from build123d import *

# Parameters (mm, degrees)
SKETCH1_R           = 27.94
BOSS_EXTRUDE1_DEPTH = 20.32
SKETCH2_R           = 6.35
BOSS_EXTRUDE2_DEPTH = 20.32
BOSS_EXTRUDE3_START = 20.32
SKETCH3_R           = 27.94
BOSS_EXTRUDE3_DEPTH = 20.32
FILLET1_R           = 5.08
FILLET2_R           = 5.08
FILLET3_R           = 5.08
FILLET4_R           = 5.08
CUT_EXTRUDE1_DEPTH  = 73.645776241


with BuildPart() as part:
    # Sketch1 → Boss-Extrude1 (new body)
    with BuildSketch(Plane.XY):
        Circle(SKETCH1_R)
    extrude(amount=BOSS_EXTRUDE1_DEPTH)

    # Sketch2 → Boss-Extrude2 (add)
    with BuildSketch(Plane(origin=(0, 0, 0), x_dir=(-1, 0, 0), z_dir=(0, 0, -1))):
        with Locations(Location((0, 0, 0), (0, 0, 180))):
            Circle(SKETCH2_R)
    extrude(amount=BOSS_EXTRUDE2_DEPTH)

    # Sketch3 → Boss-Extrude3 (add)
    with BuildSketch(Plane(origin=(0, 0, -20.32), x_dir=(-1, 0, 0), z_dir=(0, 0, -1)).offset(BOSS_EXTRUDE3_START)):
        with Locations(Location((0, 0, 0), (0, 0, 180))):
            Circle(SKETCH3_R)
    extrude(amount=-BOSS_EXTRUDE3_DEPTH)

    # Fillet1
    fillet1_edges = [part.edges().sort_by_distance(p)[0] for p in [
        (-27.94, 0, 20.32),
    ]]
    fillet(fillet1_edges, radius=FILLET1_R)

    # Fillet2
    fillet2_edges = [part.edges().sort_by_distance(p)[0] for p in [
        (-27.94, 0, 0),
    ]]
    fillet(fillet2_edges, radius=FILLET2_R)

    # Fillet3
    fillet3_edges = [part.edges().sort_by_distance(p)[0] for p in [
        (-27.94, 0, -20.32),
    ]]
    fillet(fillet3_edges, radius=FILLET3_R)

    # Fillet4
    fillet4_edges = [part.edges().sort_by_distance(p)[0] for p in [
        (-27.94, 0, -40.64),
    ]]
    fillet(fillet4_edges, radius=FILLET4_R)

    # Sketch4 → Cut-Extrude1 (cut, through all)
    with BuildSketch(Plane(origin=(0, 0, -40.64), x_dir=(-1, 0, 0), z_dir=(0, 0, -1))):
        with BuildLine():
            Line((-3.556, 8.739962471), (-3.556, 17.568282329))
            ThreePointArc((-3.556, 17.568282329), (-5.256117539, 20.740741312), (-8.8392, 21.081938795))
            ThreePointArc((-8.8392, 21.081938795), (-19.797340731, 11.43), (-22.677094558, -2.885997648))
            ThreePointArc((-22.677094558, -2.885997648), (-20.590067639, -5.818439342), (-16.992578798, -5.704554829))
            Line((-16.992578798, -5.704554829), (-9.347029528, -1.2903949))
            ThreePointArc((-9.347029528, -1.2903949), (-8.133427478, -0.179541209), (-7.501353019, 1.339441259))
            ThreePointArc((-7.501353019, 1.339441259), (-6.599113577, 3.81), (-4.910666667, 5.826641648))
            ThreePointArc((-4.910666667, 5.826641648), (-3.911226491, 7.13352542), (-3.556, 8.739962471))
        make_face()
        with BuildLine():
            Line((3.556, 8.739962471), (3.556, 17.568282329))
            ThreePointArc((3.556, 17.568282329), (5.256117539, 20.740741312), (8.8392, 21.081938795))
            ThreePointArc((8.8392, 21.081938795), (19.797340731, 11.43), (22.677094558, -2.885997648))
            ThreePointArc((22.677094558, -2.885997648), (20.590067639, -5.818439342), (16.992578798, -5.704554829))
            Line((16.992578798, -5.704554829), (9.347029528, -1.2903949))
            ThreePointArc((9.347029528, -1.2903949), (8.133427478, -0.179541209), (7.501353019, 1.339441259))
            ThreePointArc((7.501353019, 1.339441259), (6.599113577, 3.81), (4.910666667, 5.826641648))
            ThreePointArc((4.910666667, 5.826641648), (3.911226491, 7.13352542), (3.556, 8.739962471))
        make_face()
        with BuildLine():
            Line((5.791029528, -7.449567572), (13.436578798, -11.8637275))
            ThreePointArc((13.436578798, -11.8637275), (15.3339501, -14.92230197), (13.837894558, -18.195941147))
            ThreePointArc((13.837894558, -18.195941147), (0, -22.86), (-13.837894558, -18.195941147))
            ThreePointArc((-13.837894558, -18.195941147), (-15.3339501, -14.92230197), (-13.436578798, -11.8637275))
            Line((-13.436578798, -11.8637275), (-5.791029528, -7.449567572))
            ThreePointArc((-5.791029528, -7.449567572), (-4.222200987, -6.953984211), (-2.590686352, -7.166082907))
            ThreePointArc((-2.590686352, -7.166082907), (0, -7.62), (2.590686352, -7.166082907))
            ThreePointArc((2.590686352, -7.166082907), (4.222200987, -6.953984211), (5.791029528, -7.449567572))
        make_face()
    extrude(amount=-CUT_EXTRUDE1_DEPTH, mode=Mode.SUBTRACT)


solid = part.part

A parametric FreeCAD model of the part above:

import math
import FreeCAD as App
import Part
import Sketcher

V = App.Vector
Q = App.Units.Quantity


def edges_at(feature, points):
    """Names of the edges that pass closest to the given points."""
    edges = feature.Shape.Edges
    near = lambda p: min(range(len(edges)), key=lambda i: edges[i].distToShape(Part.Vertex(*p))[0])
    return sorted({f"Edge{near(p) + 1}" for p in points})

doc = App.newDocument("Part")
body = doc.addObject("PartDesign::Body", "Body")

# Sketch on XY plane
sketch1 = body.newObject("Sketcher::SketchObject", "Sketch")
sketch1.AttachmentSupport = (doc.getObject("XY_Plane"), [""])
sketch1.MapMode = "FlatFace"
sketch1.addGeometry(Part.Circle(V(0, 0, 0), V(0, 0, 1), 27.94), False)
sketch1.addConstraint([
    Sketcher.Constraint("Coincident", 0, 3, -1, 1),
    Sketcher.Constraint("Diameter", 0, Q("2.2 in")),
])
pad1 = body.newObject("PartDesign::Pad", "Pad")
pad1.Profile = sketch1
pad1.Length = Q("0.8 in")

# Sketch on XY plane
sketch2 = body.newObject("Sketcher::SketchObject", "Sketch001")
sketch2.AttachmentSupport = (doc.getObject("XY_Plane"), [""])
sketch2.MapMode = "FlatFace"
sketch2.addGeometry(Part.Circle(V(0, 0, 0), V(0, 0, 1), 6.35), False)
sketch2.addConstraint([
    Sketcher.Constraint("Coincident", 0, 3, -1, 1),
    Sketcher.Constraint("Diameter", 0, Q("0.5 in")),
])
pad2 = body.newObject("PartDesign::Pad", "Pad001")
pad2.Profile = sketch2
pad2.Length = Q("0.8 in")
pad2.Reversed = True

# Sketch on XY plane
sketch3 = body.newObject("Sketcher::SketchObject", "Sketch002")
sketch3.AttachmentSupport = (doc.getObject("XY_Plane"), [""])
sketch3.MapMode = "FlatFace"
sketch3.AttachmentOffset = App.Placement(V(0, 0, -1.6 * 25.4), App.Rotation())
sketch3.addGeometry(Part.Circle(V(0, 0, 0), V(0, 0, 1), 27.94), False)
sketch3.addConstraint([
    Sketcher.Constraint("Coincident", 0, 3, -1, 1),
    Sketcher.Constraint("Diameter", 0, Q("2.2 in")),
])
pad3 = body.newObject("PartDesign::Pad", "Pad002")
pad3.Profile = sketch3
pad3.Length = Q("0.8 in")
doc.recompute()

fillet = body.newObject("PartDesign::Fillet", "Fillet")
fillet.Base = (pad3, edges_at(pad3, [(-27.94, 0, 20.32)]))
fillet.Radius = Q("0.2 in")
doc.recompute()

fillet2 = body.newObject("PartDesign::Fillet", "Fillet001")
fillet2.Base = (fillet, edges_at(fillet, [(-27.94, 0, 0)]))
fillet2.Radius = Q("0.2 in")
doc.recompute()

fillet3 = body.newObject("PartDesign::Fillet", "Fillet002")
fillet3.Base = (fillet2, edges_at(fillet2, [(-27.94, 0, -20.32)]))
fillet3.Radius = Q("0.2 in")
doc.recompute()

fillet4 = body.newObject("PartDesign::Fillet", "Fillet003")
fillet4.Base = (fillet3, edges_at(fillet3, [(-27.94, 0, -40.64)]))
fillet4.Radius = Q("0.2 in")

# Sketch on XY plane
sketch4 = body.newObject("Sketcher::SketchObject", "Sketch003")
sketch4.AttachmentSupport = (doc.getObject("XY_Plane"), [""])
sketch4.MapMode = "FlatFace"
sketch4.AttachmentOffset = App.Placement(V(0, 0, -1.6 * 25.4), App.Rotation())
sketch4.addGeometry([
    Part.LineSegment(V(3.556, 8.739962, 0), V(3.556, 17.568282, 0)),  # 0
    Part.ArcOfCircle(Part.Circle(V(7.366, 17.568282, 0), V(0, 0, 1), 3.81), math.radians(67.252752), math.radians(180)),  # 1
    Part.ArcOfCircle(Part.Circle(V(0, 0, 0), V(0, 0, 1), 22.86), math.radians(-7.252752), math.radians(67.252752)),  # 2
    Part.ArcOfCircle(Part.Circle(V(18.897579, -2.404998, 0), V(0, 0, 1), 3.81), math.radians(-120), math.radians(-7.252752)),  # 3
    Part.LineSegment(V(16.992579, -5.704555, 0), V(9.34703, -1.290395, 0)),  # 4
    Part.ArcOfCircle(Part.Circle(V(11.25203, 2.009162, 0), V(0, 0, 1), 3.81), math.radians(-169.875965), math.radians(-120)),  # 5
    Part.ArcOfCircle(Part.Circle(V(0, 0, 0), V(0, 0, 1), 7.62), math.radians(10.124035), math.radians(49.875965)),  # 6
    Part.ArcOfCircle(Part.Circle(V(7.366, 8.739962, 0), V(0, 0, 1), 3.81), math.radians(-180), math.radians(-130.124035)),  # 7
    Part.LineSegment(V(-3.556, 17.568282, 0), V(-3.556, 8.739962, 0)),  # 8
    Part.ArcOfCircle(Part.Circle(V(-7.366, 8.739962, 0), V(0, 0, 1), 3.81), math.radians(-49.875965), math.radians(0)),  # 9
    Part.ArcOfCircle(Part.Circle(V(0, 0, 0), V(0, 0, 1), 7.62), math.radians(130.124035), math.radians(169.875965)),  # 10
    Part.ArcOfCircle(Part.Circle(V(-11.25203, 2.009162, 0), V(0, 0, 1), 3.81), math.radians(-60), math.radians(-10.124035)),  # 11
    Part.LineSegment(V(-9.34703, -1.290395, 0), V(-16.992579, -5.704555, 0)),  # 12
    Part.ArcOfCircle(Part.Circle(V(-18.897579, -2.404998, 0), V(0, 0, 1), 3.81), math.radians(-172.747248), math.radians(-60)),  # 13
    Part.ArcOfCircle(Part.Circle(V(0, 0, 0), V(0, 0, 1), 22.86), math.radians(112.747248), math.radians(187.252752)),  # 14
    Part.ArcOfCircle(Part.Circle(V(-7.366, 17.568282, 0), V(0, 0, 1), 3.81), math.radians(0), math.radians(112.747248)),  # 15
    Part.LineSegment(V(-13.436579, -11.863727, 0), V(-5.79103, -7.449568, 0)),  # 16
    Part.ArcOfCircle(Part.Circle(V(-3.88603, -10.749124, 0), V(0, 0, 1), 3.81), math.radians(70.124035), math.radians(120)),  # 17
    Part.ArcOfCircle(Part.Circle(V(0, 0, 0), V(0, 0, 1), 7.62), math.radians(-109.875965), math.radians(-70.124035)),  # 18
    Part.ArcOfCircle(Part.Circle(V(3.88603, -10.749124, 0), V(0, 0, 1), 3.81), math.radians(60), math.radians(109.875965)),  # 19
    Part.LineSegment(V(5.79103, -7.449568, 0), V(13.436579, -11.863727, 0)),  # 20
    Part.ArcOfCircle(Part.Circle(V(11.531579, -15.163284, 0), V(0, 0, 1), 3.81), math.radians(-52.747248), math.radians(60)),  # 21
    Part.ArcOfCircle(Part.Circle(V(0, 0, 0), V(0, 0, 1), 22.86), math.radians(-127.252752), math.radians(-52.747248)),  # 22
    Part.ArcOfCircle(Part.Circle(V(-11.531579, -15.163284, 0), V(0, 0, 1), 3.81), math.radians(120), math.radians(232.747248)),  # 23
], False)
sketch4.addConstraint([
    Sketcher.Constraint("Tangent", 0, 2, 1, 2),
    Sketcher.Constraint("Tangent", 1, 1, 2, 2),
    Sketcher.Constraint("Tangent", 2, 1, 3, 2),
    Sketcher.Constraint("Tangent", 3, 1, 4, 1),
    Sketcher.Constraint("Tangent", 4, 2, 5, 2),
    Sketcher.Constraint("Tangent", 5, 1, 6, 1),
    Sketcher.Constraint("Tangent", 6, 2, 7, 2),
    Sketcher.Constraint("Tangent", 7, 1, 0, 1),
    Sketcher.Constraint("Tangent", 8, 2, 9, 2),
    Sketcher.Constraint("Tangent", 9, 1, 10, 1),
    Sketcher.Constraint("Tangent", 10, 2, 11, 2),
    Sketcher.Constraint("Tangent", 11, 1, 12, 1),
    Sketcher.Constraint("Tangent", 12, 2, 13, 2),
    Sketcher.Constraint("Tangent", 13, 1, 14, 2),
    Sketcher.Constraint("Tangent", 14, 1, 15, 2),
    Sketcher.Constraint("Tangent", 15, 1, 8, 1),
    Sketcher.Constraint("Tangent", 16, 2, 17, 2),
    Sketcher.Constraint("Tangent", 17, 1, 18, 1),
    Sketcher.Constraint("Tangent", 18, 2, 19, 2),
    Sketcher.Constraint("Tangent", 19, 1, 20, 1),
    Sketcher.Constraint("Tangent", 20, 2, 21, 2),
    Sketcher.Constraint("Tangent", 21, 1, 22, 2),
    Sketcher.Constraint("Tangent", 22, 1, 23, 2),
    Sketcher.Constraint("Tangent", 23, 1, 16, 1),
    Sketcher.Constraint("Vertical", 0),
    Sketcher.Constraint("Vertical", 8),
    Sketcher.Constraint("Coincident", 2, 3, -1, 1),
    Sketcher.Constraint("Coincident", 6, 3, -1, 1),
    Sketcher.Constraint("Coincident", 10, 3, -1, 1),
    Sketcher.Constraint("Coincident", 14, 3, -1, 1),
    Sketcher.Constraint("Coincident", 18, 3, -1, 1),
    Sketcher.Constraint("Coincident", 22, 3, -1, 1),
    Sketcher.Constraint("Equal", 1, 3),
    Sketcher.Constraint("Equal", 3, 5),
    Sketcher.Constraint("Equal", 5, 7),
    Sketcher.Constraint("Equal", 7, 9),
    Sketcher.Constraint("Equal", 6, 10),
    Sketcher.Constraint("Equal", 9, 11),
    Sketcher.Constraint("Equal", 11, 13),
    Sketcher.Constraint("Equal", 2, 14),
    Sketcher.Constraint("Equal", 13, 15),
    Sketcher.Constraint("Equal", 15, 17),
    Sketcher.Constraint("Equal", 10, 18),
    Sketcher.Constraint("Equal", 17, 19),
    Sketcher.Constraint("Equal", 19, 21),
    Sketcher.Constraint("Equal", 14, 22),
    Sketcher.Constraint("Equal", 21, 23),
    Sketcher.Constraint("Symmetric", 4, 2, 11, 1, -2),
    Sketcher.Constraint("Symmetric", 16, 2, 19, 1, -2),
    Sketcher.Constraint("Parallel", 12, 16),
    Sketcher.Constraint("Horizontal", 7, 3, 9, 3),
    Sketcher.Constraint("Equal", 12, 16),
    Sketcher.Constraint("Radius", 2, Q("0.9 in")),
    Sketcher.Constraint("Radius", 6, Q("0.3 in")),
    Sketcher.Constraint("Radius", 1, Q("0.15 in")),
    Sketcher.Constraint("Angle", 4, Q("150 deg")),
    Sketcher.Constraint("DistanceX", -1, 1, 1, 3, Q("0.29 in")),
    Sketcher.Constraint("DistanceX", 11, 3, 17, 3, Q("0.29 in")),
])
pocket1 = body.newObject("PartDesign::Pocket", "Pocket")
pocket1.Profile = sketch4
pocket1.Type = "ThroughAll"
pocket1.Reversed = True

doc.recompute()
